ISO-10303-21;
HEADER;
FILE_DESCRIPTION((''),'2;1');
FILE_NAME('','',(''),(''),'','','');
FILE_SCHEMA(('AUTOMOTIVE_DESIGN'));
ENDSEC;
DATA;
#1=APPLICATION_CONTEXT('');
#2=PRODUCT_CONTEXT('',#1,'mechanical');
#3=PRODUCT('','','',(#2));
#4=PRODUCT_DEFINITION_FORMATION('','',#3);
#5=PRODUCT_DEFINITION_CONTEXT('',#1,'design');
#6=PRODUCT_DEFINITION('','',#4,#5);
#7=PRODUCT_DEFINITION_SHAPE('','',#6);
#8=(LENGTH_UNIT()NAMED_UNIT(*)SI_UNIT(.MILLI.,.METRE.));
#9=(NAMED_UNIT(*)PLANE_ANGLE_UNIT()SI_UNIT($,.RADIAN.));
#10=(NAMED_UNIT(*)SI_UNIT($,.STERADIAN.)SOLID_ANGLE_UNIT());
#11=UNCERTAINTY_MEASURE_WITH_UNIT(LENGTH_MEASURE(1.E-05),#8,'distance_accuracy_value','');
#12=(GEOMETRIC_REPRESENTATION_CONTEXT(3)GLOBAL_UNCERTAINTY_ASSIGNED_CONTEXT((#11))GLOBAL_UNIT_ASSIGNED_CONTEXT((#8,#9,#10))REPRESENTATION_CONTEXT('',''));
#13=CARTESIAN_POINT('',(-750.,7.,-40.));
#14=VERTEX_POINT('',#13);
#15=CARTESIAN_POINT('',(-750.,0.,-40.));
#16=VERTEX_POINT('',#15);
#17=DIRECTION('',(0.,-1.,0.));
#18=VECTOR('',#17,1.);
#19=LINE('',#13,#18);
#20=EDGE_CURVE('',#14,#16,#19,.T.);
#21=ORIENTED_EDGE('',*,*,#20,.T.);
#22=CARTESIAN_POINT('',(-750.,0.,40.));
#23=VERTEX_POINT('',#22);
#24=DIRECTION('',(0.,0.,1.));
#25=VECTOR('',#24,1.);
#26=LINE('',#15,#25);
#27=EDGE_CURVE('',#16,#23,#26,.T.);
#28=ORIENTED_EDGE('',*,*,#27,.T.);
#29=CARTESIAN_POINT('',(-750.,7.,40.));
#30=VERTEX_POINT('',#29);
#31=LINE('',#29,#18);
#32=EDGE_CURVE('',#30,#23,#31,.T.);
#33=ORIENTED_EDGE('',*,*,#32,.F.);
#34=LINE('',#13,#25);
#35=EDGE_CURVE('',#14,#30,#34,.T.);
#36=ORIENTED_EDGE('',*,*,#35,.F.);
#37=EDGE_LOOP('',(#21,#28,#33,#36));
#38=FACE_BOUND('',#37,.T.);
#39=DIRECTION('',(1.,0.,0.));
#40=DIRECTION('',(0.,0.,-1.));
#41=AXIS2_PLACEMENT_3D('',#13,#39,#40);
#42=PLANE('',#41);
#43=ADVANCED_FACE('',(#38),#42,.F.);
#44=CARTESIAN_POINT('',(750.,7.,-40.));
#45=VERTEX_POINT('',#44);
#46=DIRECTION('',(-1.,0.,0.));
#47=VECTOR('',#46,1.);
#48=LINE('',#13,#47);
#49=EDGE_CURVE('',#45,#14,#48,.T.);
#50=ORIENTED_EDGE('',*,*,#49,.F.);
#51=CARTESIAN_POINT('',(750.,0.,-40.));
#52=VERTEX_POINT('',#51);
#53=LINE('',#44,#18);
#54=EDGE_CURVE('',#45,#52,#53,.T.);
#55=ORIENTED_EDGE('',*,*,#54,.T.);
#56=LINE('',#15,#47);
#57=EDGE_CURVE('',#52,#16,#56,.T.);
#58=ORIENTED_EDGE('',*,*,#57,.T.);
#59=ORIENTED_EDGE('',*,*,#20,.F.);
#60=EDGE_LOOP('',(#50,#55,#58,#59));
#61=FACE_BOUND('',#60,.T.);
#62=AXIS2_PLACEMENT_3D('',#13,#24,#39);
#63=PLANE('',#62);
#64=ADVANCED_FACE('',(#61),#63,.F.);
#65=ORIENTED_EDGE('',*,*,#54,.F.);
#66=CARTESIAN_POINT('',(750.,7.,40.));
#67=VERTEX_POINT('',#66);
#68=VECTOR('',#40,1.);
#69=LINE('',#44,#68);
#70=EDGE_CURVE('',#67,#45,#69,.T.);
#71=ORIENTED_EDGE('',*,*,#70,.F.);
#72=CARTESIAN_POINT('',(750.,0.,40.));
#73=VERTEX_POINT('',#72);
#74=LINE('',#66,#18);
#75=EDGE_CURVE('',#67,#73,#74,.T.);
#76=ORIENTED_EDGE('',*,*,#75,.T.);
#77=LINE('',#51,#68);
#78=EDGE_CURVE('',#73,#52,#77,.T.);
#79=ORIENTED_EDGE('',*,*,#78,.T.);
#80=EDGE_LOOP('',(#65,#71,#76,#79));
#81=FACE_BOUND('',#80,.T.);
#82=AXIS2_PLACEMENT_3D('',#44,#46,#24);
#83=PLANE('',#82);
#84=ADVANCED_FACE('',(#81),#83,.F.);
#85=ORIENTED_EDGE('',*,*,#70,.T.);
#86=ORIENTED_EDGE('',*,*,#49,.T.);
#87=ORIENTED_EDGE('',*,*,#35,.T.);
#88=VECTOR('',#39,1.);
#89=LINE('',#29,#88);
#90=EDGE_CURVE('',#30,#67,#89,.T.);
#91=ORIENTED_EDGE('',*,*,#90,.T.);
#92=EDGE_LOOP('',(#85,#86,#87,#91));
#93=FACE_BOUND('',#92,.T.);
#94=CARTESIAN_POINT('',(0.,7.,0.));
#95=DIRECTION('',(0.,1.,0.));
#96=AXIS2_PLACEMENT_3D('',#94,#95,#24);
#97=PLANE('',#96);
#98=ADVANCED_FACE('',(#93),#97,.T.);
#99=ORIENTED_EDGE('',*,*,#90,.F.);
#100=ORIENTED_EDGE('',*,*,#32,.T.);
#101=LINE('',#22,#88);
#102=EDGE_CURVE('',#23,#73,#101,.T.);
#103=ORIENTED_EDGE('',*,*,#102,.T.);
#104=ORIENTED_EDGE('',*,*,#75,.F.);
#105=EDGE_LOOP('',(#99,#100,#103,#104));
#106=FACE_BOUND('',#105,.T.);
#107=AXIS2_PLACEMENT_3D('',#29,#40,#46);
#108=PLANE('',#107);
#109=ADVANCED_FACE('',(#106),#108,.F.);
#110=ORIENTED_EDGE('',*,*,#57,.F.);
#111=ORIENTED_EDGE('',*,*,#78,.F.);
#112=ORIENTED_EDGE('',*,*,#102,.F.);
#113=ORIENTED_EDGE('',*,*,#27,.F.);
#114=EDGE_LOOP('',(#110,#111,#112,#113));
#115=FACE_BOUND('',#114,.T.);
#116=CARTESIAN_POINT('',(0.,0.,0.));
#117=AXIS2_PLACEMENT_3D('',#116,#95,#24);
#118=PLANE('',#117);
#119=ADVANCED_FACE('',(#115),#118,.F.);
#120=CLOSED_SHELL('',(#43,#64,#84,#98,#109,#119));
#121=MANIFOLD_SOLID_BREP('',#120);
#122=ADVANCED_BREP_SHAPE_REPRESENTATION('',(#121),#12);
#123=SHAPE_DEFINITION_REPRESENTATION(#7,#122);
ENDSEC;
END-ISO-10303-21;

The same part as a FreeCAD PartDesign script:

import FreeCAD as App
import Part
import Sketcher
from FreeCAD import Vector
Q = App.Units.Quantity

doc = App.newDocument("Part")
body = doc.addObject("PartDesign::Body", "Body")

sketch1 = doc.addObject("Sketcher::SketchObject", "Sketch")
body.addObject(sketch1)
sketch1.AttachmentSupport = (doc.XZ_Plane, [""])
sketch1.MapMode = "FlatFace"
sketch1.addGeometry([
    Part.LineSegment(Vector(-750, -40, 0), Vector(-750, 40, 0)),
    Part.LineSegment(Vector(-750, 40, 0), Vector(750, 40, 0)),
    Part.LineSegment(Vector(750, 40, 0), Vector(750, -40, 0)),
    Part.LineSegment(Vector(750, -40, 0), Vector(-750, -40, 0)),
], False)
sketch1.addConstraint([
    Sketcher.Constraint("Coincident", 0, 2, 1, 1),
    Sketcher.Constraint("Coincident", 1, 2, 2, 1),
    Sketcher.Constraint("Coincident", 2, 2, 3, 1),
    Sketcher.Constraint("Coincident", 3, 2, 0, 1),
    Sketcher.Constraint("Vertical", 0),
    Sketcher.Constraint("Horizontal", 1),
    Sketcher.Constraint("Vertical", 2),
    Sketcher.Constraint("Horizontal", 3),
    Sketcher.Constraint("Symmetric", 0, 2, 2, 2, -1, 1),
    Sketcher.Constraint("DistanceX", 1, 1, 1, 2, Q("1500 mm")),
    Sketcher.Constraint("DistanceY", 0, 1, 0, 2, Q("80 mm")),
])
pad1 = doc.addObject("PartDesign::Pad", "Pad")
body.addObject(pad1)
pad1.Profile = sketch1
pad1.Length = 7
pad1.Reversed = True

doc.recompute()
